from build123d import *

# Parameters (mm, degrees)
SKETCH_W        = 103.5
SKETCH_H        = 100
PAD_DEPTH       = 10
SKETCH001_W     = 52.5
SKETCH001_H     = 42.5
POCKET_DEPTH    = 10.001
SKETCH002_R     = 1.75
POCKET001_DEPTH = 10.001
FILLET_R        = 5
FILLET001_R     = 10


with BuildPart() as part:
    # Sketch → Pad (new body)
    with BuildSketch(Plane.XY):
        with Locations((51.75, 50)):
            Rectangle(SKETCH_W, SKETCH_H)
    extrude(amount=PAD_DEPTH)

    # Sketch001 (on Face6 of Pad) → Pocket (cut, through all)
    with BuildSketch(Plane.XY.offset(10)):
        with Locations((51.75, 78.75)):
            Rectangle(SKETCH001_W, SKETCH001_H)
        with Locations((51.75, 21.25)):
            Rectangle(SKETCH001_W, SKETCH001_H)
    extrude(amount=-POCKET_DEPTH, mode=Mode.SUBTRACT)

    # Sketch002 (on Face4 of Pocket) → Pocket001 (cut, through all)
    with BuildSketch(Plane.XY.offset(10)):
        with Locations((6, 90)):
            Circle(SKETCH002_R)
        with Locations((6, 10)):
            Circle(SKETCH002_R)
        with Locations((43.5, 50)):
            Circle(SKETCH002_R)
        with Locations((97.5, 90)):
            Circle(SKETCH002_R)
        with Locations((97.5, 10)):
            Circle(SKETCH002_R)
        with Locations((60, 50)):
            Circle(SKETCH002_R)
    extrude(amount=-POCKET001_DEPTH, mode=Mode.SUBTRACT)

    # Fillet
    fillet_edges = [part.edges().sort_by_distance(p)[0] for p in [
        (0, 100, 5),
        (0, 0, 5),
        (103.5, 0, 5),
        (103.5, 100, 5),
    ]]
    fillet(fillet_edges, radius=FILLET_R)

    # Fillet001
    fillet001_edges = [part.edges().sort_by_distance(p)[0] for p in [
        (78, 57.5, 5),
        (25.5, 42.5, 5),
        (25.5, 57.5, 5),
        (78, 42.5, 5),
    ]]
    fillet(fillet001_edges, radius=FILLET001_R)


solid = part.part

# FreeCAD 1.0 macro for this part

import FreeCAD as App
import Part
import Sketcher
from FreeCAD import Vector


def edges_at(feature, points):
    """Names of the edges that pass closest to the given points."""
    edges = feature.Shape.Edges
    near = lambda p: min(range(len(edges)), key=lambda i: edges[i].distToShape(Part.Vertex(*p))[0])
    return sorted({f"Edge{near(p) + 1}" for p in points})


def add_polygon(sketch, points):
    """Adds a closed chain of lines whose ends are joined by coincident constraints."""
    first, n = sketch.GeometryCount, len(points)
    for a, b in zip(points, points[1:] + points[:1]):
        sketch.addGeometry(Part.LineSegment(App.Vector(*a, 0), App.Vector(*b, 0)), False)
    for i in range(n):
        sketch.addConstraint(Sketcher.Constraint("Coincident", first + i, 2, first + (i + 1) % n, 1))

doc = App.newDocument("Part")
params = doc.addObject("Spreadsheet::Sheet", "Params")
for row, (alias, value) in enumerate([
    ("sketch1_height", "100 mm"),
    ("sketch1_width", "103.5 mm"),
    ("pad1_length", "10 mm"),
    ("sketch2_width", "52.5 mm"),
    ("sketch2_height", "42.5 mm"),
    ("sketch3_diameter", "3.5 mm"),
    ("fillet_radius", "5 mm"),
    ("fillet2_radius", "10 mm"),
], start=1):
    params.set(f"A{row}", alias)
    params.set(f"B{row}", "=" + value)
    params.setAlias(f"B{row}", alias)

body = doc.addObject("PartDesign::Body", "Body")

sketch1 = body.newObject("Sketcher::SketchObject", "Sketch")
sketch1.AttachmentSupport = (doc.getObject("XY_Plane"), [""])
sketch1.MapMode = "FlatFace"
add_polygon(sketch1, [(0, 100), (0, 0), (104, 0), (104, 100)])
sketch1.addConstraint([
    Sketcher.Constraint("Vertical", 0),
    Sketcher.Constraint("Horizontal", 1),
    Sketcher.Constraint("Vertical", 2),
    Sketcher.Constraint("Horizontal", 3),
    Sketcher.Constraint("Coincident", 0, 2, -1, 1),
    Sketcher.Constraint("DistanceY", 0, 2, 0, 1, 100.0),
    Sketcher.Constraint("DistanceX", 1, 1, 1, 2, 103.5),
])
sketch1.setExpression("Constraints[9]", "Params.sketch1_height")
sketch1.setExpression("Constraints[10]", "Params.sketch1_width")
pad1 = body.newObject("PartDesign::Pad", "Pad")
pad1.Profile = sketch1
pad1.setExpression("Length", "Params.pad1_length")

sketch2 = body.newObject("Sketcher::SketchObject", "Sketch001")
sketch2.AttachmentSupport = (doc.getObject("XY_Plane"), [""])
sketch2.MapMode = "FlatFace"
sketch2.AttachmentOffset = App.Placement(Vector(0, 0, 10), App.Rotation())
add_polygon(sketch2, [(26, 100), (26, 58), (78, 58), (78, 100)])
add_polygon(sketch2, [(26, 42), (26, 0), (78, 0), (78, 42)])
sketch2.addConstraint([
    Sketcher.Constraint("Vertical", 0),
    Sketcher.Constraint("Horizontal", 1),
    Sketcher.Constraint("Vertical", 2),
    Sketcher.Constraint("Horizontal", 3),
    Sketcher.Constraint("Vertical", 4),
    Sketcher.Constraint("Horizontal", 5),
    Sketcher.Constraint("Vertical", 6),
    Sketcher.Constraint("Horizontal", 7),
    Sketcher.Constraint("PointOnObject", 4, 2, -1),
    Sketcher.Constraint("Vertical", 3, 2, 4, 2),
    Sketcher.Constraint("Vertical", 2, 2, 5, 2),
    Sketcher.Constraint("Equal", 2, 4),
    Sketcher.Constraint("DistanceX", 1, 1, 1, 2, 52.5),
    Sketcher.Constraint("DistanceY", 0, 2, 0, 1, 42.5),
    Sketcher.Constraint("DistanceX", -1, 1, 1, 2, 78.0),
    Sketcher.Constraint("DistanceY", -1, 1, 2, 2, 100.0),
])
sketch2.setExpression("Constraints[20]", "Params.sketch2_width")
sketch2.setExpression("Constraints[21]", "Params.sketch2_height")
pocket1 = body.newObject("PartDesign::Pocket", "Pocket")
pocket1.Profile = sketch2
pocket1.Type = "ThroughAll"

sketch3 = body.newObject("Sketcher::SketchObject", "Sketch002")
sketch3.AttachmentSupport = (doc.getObject("XY_Plane"), [""])
sketch3.MapMode = "FlatFace"
sketch3.AttachmentOffset = App.Placement(Vector(0, 0, 10), App.Rotation())
sketch3.addGeometry([
    Part.Circle(Vector(6, 90, 0), Vector(0, 0, 1), 1.8),
    Part.Circle(Vector(6, 10, 0), Vector(0, 0, 1), 1.8),
    Part.Circle(Vector(43.5, 50, 0), Vector(0, 0, 1), 1.8),
    Part.Circle(Vector(97.5, 90, 0), Vector(0, 0, 1), 1.8),
    Part.Circle(Vector(97.5, 10, 0), Vector(0, 0, 1), 1.8),
    Part.Circle(Vector(60, 50, 0), Vector(0, 0, 1), 1.8),
], False)
sketch3.addConstraint([
    Sketcher.Constraint("Equal", 0, 1),
    Sketcher.Constraint("Equal", 1, 2),
    Sketcher.Constraint("Equal", 2, 3),
    Sketcher.Constraint("Equal", 3, 4),
    Sketcher.Constraint("Equal", 4, 5),
    Sketcher.Constraint("Horizontal", 0, 3, 3, 3),
    Sketcher.Constraint("Horizontal", 1, 3, 4, 3),
    Sketcher.Constraint("Horizontal", 2, 3, 5, 3),
    Sketcher.Constraint("Vertical", 0, 3, 1, 3),
    Sketcher.Constraint("Vertical", 3, 3, 4, 3),
    Sketcher.Constraint("Diameter", 0, 3.5),
    Sketcher.Constraint("DistanceX", -1, 1, 0, 3, 6.0),
    Sketcher.Constraint("DistanceY", -1, 1, 0, 3, 90.0),
    Sketcher.Constraint("DistanceY", -1, 1, 1, 3, 10.0),
    Sketcher.Constraint("DistanceY", -1, 1, 2, 3, 50.0),
    Sketcher.Constraint("DistanceX", -1, 1, 5, 3, 60.0),
    Sketcher.Constraint("DistanceX", 2, 3, 3, 3, 54.0),
    Sketcher.Constraint("DistanceX", -1, 1, 2, 3, 43.5),
])
sketch3.setExpression("Constraints[10]", "Params.sketch3_diameter")
pocket2 = body.newObject("PartDesign::Pocket", "Pocket001")
pocket2.Profile = sketch3
pocket2.Type = "ThroughAll"
doc.recompute()

fillet = body.newObject("PartDesign::Fillet", "Fillet")
fillet.Base = (pocket2, edges_at(pocket2, [
    (0, 100, 5),
    (0, 0, 5),
    (103.5, 0, 5),
    (103.5, 100, 5),
]))
fillet.setExpression("Radius", "Params.fillet_radius")
doc.recompute()

fillet2 = body.newObject("PartDesign::Fillet", "Fillet001")
fillet2.Base = (fillet, edges_at(fillet, [
    (78, 57.5, 5),
    (25.5, 42.5, 5),
    (25.5, 57.5, 5),
    (78, 42.5, 5),
]))
fillet2.setExpression("Radius", "Params.fillet2_radius")

doc.recompute()
